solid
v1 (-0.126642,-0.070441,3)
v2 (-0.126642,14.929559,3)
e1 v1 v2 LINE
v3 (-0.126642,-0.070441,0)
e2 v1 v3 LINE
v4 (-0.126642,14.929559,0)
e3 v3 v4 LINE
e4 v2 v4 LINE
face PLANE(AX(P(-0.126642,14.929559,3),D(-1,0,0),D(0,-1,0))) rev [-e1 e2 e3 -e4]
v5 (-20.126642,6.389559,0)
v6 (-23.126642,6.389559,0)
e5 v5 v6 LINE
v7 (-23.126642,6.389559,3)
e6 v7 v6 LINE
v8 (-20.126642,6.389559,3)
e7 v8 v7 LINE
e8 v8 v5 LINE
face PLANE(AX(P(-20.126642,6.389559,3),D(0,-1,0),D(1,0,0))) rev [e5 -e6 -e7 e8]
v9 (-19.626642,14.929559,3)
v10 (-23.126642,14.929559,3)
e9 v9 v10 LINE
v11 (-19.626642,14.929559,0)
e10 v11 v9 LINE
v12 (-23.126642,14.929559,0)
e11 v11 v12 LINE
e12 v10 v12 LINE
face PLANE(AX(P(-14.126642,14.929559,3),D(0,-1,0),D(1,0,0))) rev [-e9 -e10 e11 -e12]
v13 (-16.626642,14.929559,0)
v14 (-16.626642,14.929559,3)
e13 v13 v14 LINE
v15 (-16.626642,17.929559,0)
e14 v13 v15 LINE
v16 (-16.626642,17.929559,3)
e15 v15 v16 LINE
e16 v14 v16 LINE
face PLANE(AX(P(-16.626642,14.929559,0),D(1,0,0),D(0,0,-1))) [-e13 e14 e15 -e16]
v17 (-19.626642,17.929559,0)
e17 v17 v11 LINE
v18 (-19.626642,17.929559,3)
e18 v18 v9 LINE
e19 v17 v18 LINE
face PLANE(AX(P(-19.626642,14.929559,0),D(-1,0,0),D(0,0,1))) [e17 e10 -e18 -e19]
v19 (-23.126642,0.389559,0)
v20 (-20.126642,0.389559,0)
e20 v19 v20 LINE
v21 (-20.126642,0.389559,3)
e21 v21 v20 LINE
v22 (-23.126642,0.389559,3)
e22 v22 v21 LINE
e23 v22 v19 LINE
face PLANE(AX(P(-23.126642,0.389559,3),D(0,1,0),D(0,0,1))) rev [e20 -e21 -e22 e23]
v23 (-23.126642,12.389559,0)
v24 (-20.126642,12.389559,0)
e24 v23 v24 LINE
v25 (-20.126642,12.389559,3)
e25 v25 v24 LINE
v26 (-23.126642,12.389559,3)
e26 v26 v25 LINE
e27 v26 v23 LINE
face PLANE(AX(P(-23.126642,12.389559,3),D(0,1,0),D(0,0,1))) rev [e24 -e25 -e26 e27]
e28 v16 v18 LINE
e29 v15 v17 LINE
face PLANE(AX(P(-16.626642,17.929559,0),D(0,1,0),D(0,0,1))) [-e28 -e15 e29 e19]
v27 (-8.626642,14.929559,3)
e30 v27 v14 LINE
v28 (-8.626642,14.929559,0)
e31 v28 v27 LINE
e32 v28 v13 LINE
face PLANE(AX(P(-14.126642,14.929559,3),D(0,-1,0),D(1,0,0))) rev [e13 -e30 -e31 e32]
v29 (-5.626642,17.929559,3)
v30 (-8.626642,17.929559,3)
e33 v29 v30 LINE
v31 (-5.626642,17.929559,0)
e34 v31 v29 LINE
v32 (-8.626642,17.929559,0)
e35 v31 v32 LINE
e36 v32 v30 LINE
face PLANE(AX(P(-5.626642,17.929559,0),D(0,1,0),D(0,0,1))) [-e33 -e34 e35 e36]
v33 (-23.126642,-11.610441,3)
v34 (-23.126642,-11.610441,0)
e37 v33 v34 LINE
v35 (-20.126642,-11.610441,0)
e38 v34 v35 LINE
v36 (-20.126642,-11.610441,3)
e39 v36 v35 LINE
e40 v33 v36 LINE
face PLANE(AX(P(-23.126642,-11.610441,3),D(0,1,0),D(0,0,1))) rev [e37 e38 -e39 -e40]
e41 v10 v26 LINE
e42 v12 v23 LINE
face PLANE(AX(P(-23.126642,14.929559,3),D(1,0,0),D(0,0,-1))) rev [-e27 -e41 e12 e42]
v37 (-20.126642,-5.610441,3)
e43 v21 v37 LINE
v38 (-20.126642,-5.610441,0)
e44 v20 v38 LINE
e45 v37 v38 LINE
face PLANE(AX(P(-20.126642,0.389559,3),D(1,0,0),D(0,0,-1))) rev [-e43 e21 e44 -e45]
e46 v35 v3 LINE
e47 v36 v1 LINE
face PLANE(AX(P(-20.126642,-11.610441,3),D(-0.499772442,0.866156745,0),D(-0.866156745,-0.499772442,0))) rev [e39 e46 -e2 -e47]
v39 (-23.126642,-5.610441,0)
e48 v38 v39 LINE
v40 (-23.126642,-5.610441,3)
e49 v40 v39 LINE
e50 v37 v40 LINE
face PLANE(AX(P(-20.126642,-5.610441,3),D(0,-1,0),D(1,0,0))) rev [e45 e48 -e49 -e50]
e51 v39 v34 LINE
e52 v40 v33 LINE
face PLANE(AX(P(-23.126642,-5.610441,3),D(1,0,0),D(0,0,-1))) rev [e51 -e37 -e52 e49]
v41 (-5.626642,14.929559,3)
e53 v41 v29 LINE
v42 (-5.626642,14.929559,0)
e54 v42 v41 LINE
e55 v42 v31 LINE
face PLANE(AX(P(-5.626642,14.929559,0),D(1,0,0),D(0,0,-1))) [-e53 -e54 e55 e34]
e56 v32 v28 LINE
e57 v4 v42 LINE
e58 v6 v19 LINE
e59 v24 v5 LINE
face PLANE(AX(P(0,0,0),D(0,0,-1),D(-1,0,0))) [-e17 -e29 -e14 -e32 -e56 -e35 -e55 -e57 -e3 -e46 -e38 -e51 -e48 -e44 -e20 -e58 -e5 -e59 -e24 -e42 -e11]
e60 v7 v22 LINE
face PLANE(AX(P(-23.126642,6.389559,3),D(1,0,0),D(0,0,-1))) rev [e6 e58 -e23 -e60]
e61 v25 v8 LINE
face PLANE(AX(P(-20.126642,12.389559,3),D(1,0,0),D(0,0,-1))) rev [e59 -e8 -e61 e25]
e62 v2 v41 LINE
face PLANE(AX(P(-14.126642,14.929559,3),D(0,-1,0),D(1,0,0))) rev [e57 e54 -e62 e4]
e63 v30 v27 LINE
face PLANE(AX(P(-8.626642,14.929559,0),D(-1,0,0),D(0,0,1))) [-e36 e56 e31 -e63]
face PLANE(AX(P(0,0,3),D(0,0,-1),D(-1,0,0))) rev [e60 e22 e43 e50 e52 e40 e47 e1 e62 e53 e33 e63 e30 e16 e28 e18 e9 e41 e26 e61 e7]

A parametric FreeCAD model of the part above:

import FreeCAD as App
import Part
import Sketcher
from FreeCAD import Vector

doc = App.newDocument("Part")
body = doc.addObject("PartDesign::Body", "Body")

sketch1 = body.newObject("Sketcher::SketchObject", "Sketch")
sketch1.AttachmentSupport = (doc.getObject("XY_Plane"), [""])
sketch1.MapMode = "FlatFace"
sketch1.addGeometry(Part.LineSegment(Vector(-0.126642, -0.070441, 0), Vector(-0.126642, 14.929559, 0)), False)
sketch1.addGeometry(Part.LineSegment(Vector(-0.126642, 14.929559, 0), Vector(-23.126642, 14.929559, 0)), False)
sketch1.addGeometry(Part.LineSegment(Vector(-23.126642, 14.929559, 0), Vector(-23.126642, 12.389559, 0)), False)
sketch1.addGeometry(Part.LineSegment(Vector(-23.126642, 12.389559, 0), Vector(-20.126642, 12.389559, 0)), False)
sketch1.addGeometry(Part.LineSegment(Vector(-20.126642, 12.389559, 0), Vector(-20.126642, 6.389559, 0)), False)
sketch1.addGeometry(Part.LineSegment(Vector(-20.126642, 6.389559, 0), Vector(-23.126642, 6.389559, 0)), False)
sketch1.addGeometry(Part.LineSegment(Vector(-23.126642, 6.389559, 0), Vector(-23.126642, 0.389559, 0)), False)
sketch1.addGeometry(Part.LineSegment(Vector(-23.126642, 0.389559, 0), Vector(-20.126642, 0.389559, 0)), False)
sketch1.addGeometry(Part.LineSegment(Vector(-20.126642, 0.389559, 0), Vector(-20.126642, -5.610441, 0)), False)
sketch1.addGeometry(Part.LineSegment(Vector(-20.126642, -5.610441, 0), Vector(-23.126642, -5.610441, 0)), False)
sketch1.addGeometry(Part.LineSegment(Vector(-23.126642, -5.610441, 0), Vector(-23.126642, -11.610441, 0)), False)
sketch1.addGeometry(Part.LineSegment(Vector(-23.126642, -11.610441, 0), Vector(-20.126642, -11.610441, 0)), False)
sketch1.addGeometry(Part.LineSegment(Vector(-20.126642, -11.610441, 0), Vector(-0.126642, -0.070441, 0)), False)
sketch1.addConstraint(Sketcher.Constraint("Coincident", 0, 2, 1, 1))
sketch1.addConstraint(Sketcher.Constraint("Coincident", 1, 2, 2, 1))
sketch1.addConstraint(Sketcher.Constraint("Coincident", 2, 2, 3, 1))
sketch1.addConstraint(Sketcher.Constraint("Coincident", 3, 2, 4, 1))
sketch1.addConstraint(Sketcher.Constraint("Coincident", 4, 2, 5, 1))
sketch1.addConstraint(Sketcher.Constraint("Coincident", 5, 2, 6, 1))
sketch1.addConstraint(Sketcher.Constraint("Coincident", 6, 2, 7, 1))
sketch1.addConstraint(Sketcher.Constraint("Coincident", 7, 2, 8, 1))
sketch1.addConstraint(Sketcher.Constraint("Coincident", 8, 2, 9, 1))
sketch1.addConstraint(Sketcher.Constraint("Coincident", 9, 2, 10, 1))
sketch1.addConstraint(Sketcher.Constraint("Coincident", 10, 2, 11, 1))
sketch1.addConstraint(Sketcher.Constraint("Coincident", 11, 2, 12, 1))
sketch1.addConstraint(Sketcher.Constraint("Coincident", 12, 2, 0, 1))
sketch1.addConstraint(Sketcher.Constraint("Vertical", 0))
sketch1.addConstraint(Sketcher.Constraint("Horizontal", 1))
sketch1.addConstraint(Sketcher.Constraint("Vertical", 2))
sketch1.addConstraint(Sketcher.Constraint("Horizontal", 3))
sketch1.addConstraint(Sketcher.Constraint("Vertical", 4))
sketch1.addConstraint(Sketcher.Constraint("Horizontal", 5))
sketch1.addConstraint(Sketcher.Constraint("Vertical", 6))
sketch1.addConstraint(Sketcher.Constraint("Horizontal", 7))
sketch1.addConstraint(Sketcher.Constraint("Vertical", 8))
sketch1.addConstraint(Sketcher.Constraint("Horizontal", 9))
sketch1.addConstraint(Sketcher.Constraint("Vertical", 10))
sketch1.addConstraint(Sketcher.Constraint("Horizontal", 11))
sketch1.addConstraint(Sketcher.Constraint("Vertical", 2, 2, 5, 2))
sketch1.addConstraint(Sketcher.Constraint("Vertical", 4, 2, 7, 2))
sketch1.addConstraint(Sketcher.Constraint("Vertical", 6, 2, 9, 2))
sketch1.addConstraint(Sketcher.Constraint("Vertical", 8, 2, 11, 2))
sketch1.addConstraint(Sketcher.Constraint("Equal", 4, 6))
sketch1.addConstraint(Sketcher.Constraint("Equal", 6, 8))
sketch1.addConstraint(Sketcher.Constraint("Equal", 8, 10))
sketch1.addConstraint(Sketcher.Constraint("DistanceX", 1, 2, 1, 1, 23.0))
sketch1.addConstraint(Sketcher.Constraint("DistanceX", 3, 1, 3, 2, 3.0))
sketch1.addConstraint(Sketcher.Constraint("DistanceY", 0, 1, 0, 2, 15.0))
sketch1.addConstraint(Sketcher.Constraint("DistanceY", 4, 2, 4, 1, 6.0))
sketch1.addConstraint(Sketcher.Constraint("DistanceY", 2, 2, 2, 1, 2.54))
sketch1.addConstraint(Sketcher.Constraint("DistanceY", -1, 1, 0, 2, 14.929559))
sketch1.addConstraint(Sketcher.Constraint("DistanceX", 0, 2, -1, 1, 0.126642))
pad1 = body.newObject("PartDesign::Pad", "Pad")
pad1.Profile = sketch1
pad1.Length = 3

sketch2 = body.newObject("Sketcher::SketchObject", "Sketch001")
sketch2.AttachmentSupport = (doc.getObject("XY_Plane"), [""])
sketch2.MapMode = "FlatFace"
sketch2.AttachmentOffset = App.Placement(Vector(0, 0, 3), App.Rotation())
sketch2.addGeometry(Part.LineSegment(Vector(-8.626642, 17.929559, 0), Vector(-8.626642, 14.929559, 0)), False)
sketch2.addGeometry(Part.LineSegment(Vector(-8.626642, 14.929559, 0), Vector(-5.626642, 14.929559, 0)), False)
sketch2.addGeometry(Part.LineSegment(Vector(-5.626642, 14.929559, 0), Vector(-5.626642, 17.929559, 0)), False)
sketch2.addGeometry(Part.LineSegment(Vector(-5.626642, 17.929559, 0), Vector(-8.626642, 17.929559, 0)), False)
sketch2.addGeometry(Part.LineSegment(Vector(-19.626642, 17.929559, 0), Vector(-19.626642, 14.929559, 0)), False)
sketch2.addGeometry(Part.LineSegment(Vector(-19.626642, 14.929559, 0), Vector(-16.626642, 14.929559, 0)), False)
sketch2.addGeometry(Part.LineSegment(Vector(-16.626642, 14.929559, 0), Vector(-16.626642, 17.929559, 0)), False)
sketch2.addGeometry(Part.LineSegment(Vector(-16.626642, 17.929559, 0), Vector(-19.626642, 17.929559, 0)), False)
sketch2.addConstraint(Sketcher.Constraint("Coincident", 0, 2, 1, 1))
sketch2.addConstraint(Sketcher.Constraint("Coincident", 1, 2, 2, 1))
sketch2.addConstraint(Sketcher.Constraint("Coincident", 2, 2, 3, 1))
sketch2.addConstraint(Sketcher.Constraint("Coincident", 3, 2, 0, 1))
sketch2.addConstraint(Sketcher.Constraint("Coincident", 4, 2, 5, 1))
sketch2.addConstraint(Sketcher.Constraint("Coincident", 5, 2, 6, 1))
sketch2.addConstraint(Sketcher.Constraint("Coincident", 6, 2, 7, 1))
sketch2.addConstraint(Sketcher.Constraint("Coincident", 7, 2, 4, 1))
sketch2.addConstraint(Sketcher.Constraint("Vertical", 0))
sketch2.addConstraint(Sketcher.Constraint("Horizontal", 1))
sketch2.addConstraint(Sketcher.Constraint("Vertical", 2))
sketch2.addConstraint(Sketcher.Constraint("Horizontal", 3))
sketch2.addConstraint(Sketcher.Constraint("Vertical", 4))
sketch2.addConstraint(Sketcher.Constraint("Horizontal", 5))
sketch2.addConstraint(Sketcher.Constraint("Vertical", 6))
sketch2.addConstraint(Sketcher.Constraint("Horizontal", 7))
sketch2.addConstraint(Sketcher.Constraint("Horizontal", 1, 2, 4, 2))
sketch2.addConstraint(Sketcher.Constraint("Horizontal", 3, 2, 6, 2))
sketch2.addConstraint(Sketcher.Constraint("Equal", 3, 5))
sketch2.addConstraint(Sketcher.Constraint("Equal", 7, 0))
sketch2.addConstraint(Sketcher.Constraint("DistanceX", 1, 1, 1, 2, 3.0))
sketch2.addConstraint(Sketcher.Constraint("DistanceX", 4, 2, 0, 2, 11.0))
sketch2.addConstraint(Sketcher.Constraint("DistanceY", -1, 1, 0, 2, 14.929559))
sketch2.addConstraint(Sketcher.Constraint("DistanceX", 0, 2, -1, 1, 8.626642))
pad2 = body.newObject("PartDesign::Pad", "Pad001")
pad2.Profile = sketch2
pad2.Length = 3
pad2.Reversed = True

doc.recompute()
